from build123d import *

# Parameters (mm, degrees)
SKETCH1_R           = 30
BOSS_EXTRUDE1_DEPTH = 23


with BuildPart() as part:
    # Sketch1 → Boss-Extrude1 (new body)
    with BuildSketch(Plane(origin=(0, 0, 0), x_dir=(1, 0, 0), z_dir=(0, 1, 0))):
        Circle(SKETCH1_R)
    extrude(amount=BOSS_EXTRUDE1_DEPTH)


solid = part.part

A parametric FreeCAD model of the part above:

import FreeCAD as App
import Part
import Sketcher

V = App.Vector

doc = App.newDocument("Part")
body = doc.addObject("PartDesign::Body", "Body")

sketch1 = body.newObject("Sketcher::SketchObject", "Sketch")
sketch1.AttachmentSupport = (doc.getObject("XZ_Plane"), [""])
sketch1.MapMode = "FlatFace"
sketch1.addGeometry(Part.Circle(V(0, 0, 0), V(0, 0, 1), 30), False)
sketch1.addConstraint([
    Sketcher.Constraint("Coincident", 0, 3, -1, 1),
    Sketcher.Constraint("Diameter", 0, 60.0),
])
pad1 = body.newObject("PartDesign::Pad", "Pad")
pad1.Profile = sketch1
pad1.Length = 23
pad1.Reversed = True

doc.recompute()
